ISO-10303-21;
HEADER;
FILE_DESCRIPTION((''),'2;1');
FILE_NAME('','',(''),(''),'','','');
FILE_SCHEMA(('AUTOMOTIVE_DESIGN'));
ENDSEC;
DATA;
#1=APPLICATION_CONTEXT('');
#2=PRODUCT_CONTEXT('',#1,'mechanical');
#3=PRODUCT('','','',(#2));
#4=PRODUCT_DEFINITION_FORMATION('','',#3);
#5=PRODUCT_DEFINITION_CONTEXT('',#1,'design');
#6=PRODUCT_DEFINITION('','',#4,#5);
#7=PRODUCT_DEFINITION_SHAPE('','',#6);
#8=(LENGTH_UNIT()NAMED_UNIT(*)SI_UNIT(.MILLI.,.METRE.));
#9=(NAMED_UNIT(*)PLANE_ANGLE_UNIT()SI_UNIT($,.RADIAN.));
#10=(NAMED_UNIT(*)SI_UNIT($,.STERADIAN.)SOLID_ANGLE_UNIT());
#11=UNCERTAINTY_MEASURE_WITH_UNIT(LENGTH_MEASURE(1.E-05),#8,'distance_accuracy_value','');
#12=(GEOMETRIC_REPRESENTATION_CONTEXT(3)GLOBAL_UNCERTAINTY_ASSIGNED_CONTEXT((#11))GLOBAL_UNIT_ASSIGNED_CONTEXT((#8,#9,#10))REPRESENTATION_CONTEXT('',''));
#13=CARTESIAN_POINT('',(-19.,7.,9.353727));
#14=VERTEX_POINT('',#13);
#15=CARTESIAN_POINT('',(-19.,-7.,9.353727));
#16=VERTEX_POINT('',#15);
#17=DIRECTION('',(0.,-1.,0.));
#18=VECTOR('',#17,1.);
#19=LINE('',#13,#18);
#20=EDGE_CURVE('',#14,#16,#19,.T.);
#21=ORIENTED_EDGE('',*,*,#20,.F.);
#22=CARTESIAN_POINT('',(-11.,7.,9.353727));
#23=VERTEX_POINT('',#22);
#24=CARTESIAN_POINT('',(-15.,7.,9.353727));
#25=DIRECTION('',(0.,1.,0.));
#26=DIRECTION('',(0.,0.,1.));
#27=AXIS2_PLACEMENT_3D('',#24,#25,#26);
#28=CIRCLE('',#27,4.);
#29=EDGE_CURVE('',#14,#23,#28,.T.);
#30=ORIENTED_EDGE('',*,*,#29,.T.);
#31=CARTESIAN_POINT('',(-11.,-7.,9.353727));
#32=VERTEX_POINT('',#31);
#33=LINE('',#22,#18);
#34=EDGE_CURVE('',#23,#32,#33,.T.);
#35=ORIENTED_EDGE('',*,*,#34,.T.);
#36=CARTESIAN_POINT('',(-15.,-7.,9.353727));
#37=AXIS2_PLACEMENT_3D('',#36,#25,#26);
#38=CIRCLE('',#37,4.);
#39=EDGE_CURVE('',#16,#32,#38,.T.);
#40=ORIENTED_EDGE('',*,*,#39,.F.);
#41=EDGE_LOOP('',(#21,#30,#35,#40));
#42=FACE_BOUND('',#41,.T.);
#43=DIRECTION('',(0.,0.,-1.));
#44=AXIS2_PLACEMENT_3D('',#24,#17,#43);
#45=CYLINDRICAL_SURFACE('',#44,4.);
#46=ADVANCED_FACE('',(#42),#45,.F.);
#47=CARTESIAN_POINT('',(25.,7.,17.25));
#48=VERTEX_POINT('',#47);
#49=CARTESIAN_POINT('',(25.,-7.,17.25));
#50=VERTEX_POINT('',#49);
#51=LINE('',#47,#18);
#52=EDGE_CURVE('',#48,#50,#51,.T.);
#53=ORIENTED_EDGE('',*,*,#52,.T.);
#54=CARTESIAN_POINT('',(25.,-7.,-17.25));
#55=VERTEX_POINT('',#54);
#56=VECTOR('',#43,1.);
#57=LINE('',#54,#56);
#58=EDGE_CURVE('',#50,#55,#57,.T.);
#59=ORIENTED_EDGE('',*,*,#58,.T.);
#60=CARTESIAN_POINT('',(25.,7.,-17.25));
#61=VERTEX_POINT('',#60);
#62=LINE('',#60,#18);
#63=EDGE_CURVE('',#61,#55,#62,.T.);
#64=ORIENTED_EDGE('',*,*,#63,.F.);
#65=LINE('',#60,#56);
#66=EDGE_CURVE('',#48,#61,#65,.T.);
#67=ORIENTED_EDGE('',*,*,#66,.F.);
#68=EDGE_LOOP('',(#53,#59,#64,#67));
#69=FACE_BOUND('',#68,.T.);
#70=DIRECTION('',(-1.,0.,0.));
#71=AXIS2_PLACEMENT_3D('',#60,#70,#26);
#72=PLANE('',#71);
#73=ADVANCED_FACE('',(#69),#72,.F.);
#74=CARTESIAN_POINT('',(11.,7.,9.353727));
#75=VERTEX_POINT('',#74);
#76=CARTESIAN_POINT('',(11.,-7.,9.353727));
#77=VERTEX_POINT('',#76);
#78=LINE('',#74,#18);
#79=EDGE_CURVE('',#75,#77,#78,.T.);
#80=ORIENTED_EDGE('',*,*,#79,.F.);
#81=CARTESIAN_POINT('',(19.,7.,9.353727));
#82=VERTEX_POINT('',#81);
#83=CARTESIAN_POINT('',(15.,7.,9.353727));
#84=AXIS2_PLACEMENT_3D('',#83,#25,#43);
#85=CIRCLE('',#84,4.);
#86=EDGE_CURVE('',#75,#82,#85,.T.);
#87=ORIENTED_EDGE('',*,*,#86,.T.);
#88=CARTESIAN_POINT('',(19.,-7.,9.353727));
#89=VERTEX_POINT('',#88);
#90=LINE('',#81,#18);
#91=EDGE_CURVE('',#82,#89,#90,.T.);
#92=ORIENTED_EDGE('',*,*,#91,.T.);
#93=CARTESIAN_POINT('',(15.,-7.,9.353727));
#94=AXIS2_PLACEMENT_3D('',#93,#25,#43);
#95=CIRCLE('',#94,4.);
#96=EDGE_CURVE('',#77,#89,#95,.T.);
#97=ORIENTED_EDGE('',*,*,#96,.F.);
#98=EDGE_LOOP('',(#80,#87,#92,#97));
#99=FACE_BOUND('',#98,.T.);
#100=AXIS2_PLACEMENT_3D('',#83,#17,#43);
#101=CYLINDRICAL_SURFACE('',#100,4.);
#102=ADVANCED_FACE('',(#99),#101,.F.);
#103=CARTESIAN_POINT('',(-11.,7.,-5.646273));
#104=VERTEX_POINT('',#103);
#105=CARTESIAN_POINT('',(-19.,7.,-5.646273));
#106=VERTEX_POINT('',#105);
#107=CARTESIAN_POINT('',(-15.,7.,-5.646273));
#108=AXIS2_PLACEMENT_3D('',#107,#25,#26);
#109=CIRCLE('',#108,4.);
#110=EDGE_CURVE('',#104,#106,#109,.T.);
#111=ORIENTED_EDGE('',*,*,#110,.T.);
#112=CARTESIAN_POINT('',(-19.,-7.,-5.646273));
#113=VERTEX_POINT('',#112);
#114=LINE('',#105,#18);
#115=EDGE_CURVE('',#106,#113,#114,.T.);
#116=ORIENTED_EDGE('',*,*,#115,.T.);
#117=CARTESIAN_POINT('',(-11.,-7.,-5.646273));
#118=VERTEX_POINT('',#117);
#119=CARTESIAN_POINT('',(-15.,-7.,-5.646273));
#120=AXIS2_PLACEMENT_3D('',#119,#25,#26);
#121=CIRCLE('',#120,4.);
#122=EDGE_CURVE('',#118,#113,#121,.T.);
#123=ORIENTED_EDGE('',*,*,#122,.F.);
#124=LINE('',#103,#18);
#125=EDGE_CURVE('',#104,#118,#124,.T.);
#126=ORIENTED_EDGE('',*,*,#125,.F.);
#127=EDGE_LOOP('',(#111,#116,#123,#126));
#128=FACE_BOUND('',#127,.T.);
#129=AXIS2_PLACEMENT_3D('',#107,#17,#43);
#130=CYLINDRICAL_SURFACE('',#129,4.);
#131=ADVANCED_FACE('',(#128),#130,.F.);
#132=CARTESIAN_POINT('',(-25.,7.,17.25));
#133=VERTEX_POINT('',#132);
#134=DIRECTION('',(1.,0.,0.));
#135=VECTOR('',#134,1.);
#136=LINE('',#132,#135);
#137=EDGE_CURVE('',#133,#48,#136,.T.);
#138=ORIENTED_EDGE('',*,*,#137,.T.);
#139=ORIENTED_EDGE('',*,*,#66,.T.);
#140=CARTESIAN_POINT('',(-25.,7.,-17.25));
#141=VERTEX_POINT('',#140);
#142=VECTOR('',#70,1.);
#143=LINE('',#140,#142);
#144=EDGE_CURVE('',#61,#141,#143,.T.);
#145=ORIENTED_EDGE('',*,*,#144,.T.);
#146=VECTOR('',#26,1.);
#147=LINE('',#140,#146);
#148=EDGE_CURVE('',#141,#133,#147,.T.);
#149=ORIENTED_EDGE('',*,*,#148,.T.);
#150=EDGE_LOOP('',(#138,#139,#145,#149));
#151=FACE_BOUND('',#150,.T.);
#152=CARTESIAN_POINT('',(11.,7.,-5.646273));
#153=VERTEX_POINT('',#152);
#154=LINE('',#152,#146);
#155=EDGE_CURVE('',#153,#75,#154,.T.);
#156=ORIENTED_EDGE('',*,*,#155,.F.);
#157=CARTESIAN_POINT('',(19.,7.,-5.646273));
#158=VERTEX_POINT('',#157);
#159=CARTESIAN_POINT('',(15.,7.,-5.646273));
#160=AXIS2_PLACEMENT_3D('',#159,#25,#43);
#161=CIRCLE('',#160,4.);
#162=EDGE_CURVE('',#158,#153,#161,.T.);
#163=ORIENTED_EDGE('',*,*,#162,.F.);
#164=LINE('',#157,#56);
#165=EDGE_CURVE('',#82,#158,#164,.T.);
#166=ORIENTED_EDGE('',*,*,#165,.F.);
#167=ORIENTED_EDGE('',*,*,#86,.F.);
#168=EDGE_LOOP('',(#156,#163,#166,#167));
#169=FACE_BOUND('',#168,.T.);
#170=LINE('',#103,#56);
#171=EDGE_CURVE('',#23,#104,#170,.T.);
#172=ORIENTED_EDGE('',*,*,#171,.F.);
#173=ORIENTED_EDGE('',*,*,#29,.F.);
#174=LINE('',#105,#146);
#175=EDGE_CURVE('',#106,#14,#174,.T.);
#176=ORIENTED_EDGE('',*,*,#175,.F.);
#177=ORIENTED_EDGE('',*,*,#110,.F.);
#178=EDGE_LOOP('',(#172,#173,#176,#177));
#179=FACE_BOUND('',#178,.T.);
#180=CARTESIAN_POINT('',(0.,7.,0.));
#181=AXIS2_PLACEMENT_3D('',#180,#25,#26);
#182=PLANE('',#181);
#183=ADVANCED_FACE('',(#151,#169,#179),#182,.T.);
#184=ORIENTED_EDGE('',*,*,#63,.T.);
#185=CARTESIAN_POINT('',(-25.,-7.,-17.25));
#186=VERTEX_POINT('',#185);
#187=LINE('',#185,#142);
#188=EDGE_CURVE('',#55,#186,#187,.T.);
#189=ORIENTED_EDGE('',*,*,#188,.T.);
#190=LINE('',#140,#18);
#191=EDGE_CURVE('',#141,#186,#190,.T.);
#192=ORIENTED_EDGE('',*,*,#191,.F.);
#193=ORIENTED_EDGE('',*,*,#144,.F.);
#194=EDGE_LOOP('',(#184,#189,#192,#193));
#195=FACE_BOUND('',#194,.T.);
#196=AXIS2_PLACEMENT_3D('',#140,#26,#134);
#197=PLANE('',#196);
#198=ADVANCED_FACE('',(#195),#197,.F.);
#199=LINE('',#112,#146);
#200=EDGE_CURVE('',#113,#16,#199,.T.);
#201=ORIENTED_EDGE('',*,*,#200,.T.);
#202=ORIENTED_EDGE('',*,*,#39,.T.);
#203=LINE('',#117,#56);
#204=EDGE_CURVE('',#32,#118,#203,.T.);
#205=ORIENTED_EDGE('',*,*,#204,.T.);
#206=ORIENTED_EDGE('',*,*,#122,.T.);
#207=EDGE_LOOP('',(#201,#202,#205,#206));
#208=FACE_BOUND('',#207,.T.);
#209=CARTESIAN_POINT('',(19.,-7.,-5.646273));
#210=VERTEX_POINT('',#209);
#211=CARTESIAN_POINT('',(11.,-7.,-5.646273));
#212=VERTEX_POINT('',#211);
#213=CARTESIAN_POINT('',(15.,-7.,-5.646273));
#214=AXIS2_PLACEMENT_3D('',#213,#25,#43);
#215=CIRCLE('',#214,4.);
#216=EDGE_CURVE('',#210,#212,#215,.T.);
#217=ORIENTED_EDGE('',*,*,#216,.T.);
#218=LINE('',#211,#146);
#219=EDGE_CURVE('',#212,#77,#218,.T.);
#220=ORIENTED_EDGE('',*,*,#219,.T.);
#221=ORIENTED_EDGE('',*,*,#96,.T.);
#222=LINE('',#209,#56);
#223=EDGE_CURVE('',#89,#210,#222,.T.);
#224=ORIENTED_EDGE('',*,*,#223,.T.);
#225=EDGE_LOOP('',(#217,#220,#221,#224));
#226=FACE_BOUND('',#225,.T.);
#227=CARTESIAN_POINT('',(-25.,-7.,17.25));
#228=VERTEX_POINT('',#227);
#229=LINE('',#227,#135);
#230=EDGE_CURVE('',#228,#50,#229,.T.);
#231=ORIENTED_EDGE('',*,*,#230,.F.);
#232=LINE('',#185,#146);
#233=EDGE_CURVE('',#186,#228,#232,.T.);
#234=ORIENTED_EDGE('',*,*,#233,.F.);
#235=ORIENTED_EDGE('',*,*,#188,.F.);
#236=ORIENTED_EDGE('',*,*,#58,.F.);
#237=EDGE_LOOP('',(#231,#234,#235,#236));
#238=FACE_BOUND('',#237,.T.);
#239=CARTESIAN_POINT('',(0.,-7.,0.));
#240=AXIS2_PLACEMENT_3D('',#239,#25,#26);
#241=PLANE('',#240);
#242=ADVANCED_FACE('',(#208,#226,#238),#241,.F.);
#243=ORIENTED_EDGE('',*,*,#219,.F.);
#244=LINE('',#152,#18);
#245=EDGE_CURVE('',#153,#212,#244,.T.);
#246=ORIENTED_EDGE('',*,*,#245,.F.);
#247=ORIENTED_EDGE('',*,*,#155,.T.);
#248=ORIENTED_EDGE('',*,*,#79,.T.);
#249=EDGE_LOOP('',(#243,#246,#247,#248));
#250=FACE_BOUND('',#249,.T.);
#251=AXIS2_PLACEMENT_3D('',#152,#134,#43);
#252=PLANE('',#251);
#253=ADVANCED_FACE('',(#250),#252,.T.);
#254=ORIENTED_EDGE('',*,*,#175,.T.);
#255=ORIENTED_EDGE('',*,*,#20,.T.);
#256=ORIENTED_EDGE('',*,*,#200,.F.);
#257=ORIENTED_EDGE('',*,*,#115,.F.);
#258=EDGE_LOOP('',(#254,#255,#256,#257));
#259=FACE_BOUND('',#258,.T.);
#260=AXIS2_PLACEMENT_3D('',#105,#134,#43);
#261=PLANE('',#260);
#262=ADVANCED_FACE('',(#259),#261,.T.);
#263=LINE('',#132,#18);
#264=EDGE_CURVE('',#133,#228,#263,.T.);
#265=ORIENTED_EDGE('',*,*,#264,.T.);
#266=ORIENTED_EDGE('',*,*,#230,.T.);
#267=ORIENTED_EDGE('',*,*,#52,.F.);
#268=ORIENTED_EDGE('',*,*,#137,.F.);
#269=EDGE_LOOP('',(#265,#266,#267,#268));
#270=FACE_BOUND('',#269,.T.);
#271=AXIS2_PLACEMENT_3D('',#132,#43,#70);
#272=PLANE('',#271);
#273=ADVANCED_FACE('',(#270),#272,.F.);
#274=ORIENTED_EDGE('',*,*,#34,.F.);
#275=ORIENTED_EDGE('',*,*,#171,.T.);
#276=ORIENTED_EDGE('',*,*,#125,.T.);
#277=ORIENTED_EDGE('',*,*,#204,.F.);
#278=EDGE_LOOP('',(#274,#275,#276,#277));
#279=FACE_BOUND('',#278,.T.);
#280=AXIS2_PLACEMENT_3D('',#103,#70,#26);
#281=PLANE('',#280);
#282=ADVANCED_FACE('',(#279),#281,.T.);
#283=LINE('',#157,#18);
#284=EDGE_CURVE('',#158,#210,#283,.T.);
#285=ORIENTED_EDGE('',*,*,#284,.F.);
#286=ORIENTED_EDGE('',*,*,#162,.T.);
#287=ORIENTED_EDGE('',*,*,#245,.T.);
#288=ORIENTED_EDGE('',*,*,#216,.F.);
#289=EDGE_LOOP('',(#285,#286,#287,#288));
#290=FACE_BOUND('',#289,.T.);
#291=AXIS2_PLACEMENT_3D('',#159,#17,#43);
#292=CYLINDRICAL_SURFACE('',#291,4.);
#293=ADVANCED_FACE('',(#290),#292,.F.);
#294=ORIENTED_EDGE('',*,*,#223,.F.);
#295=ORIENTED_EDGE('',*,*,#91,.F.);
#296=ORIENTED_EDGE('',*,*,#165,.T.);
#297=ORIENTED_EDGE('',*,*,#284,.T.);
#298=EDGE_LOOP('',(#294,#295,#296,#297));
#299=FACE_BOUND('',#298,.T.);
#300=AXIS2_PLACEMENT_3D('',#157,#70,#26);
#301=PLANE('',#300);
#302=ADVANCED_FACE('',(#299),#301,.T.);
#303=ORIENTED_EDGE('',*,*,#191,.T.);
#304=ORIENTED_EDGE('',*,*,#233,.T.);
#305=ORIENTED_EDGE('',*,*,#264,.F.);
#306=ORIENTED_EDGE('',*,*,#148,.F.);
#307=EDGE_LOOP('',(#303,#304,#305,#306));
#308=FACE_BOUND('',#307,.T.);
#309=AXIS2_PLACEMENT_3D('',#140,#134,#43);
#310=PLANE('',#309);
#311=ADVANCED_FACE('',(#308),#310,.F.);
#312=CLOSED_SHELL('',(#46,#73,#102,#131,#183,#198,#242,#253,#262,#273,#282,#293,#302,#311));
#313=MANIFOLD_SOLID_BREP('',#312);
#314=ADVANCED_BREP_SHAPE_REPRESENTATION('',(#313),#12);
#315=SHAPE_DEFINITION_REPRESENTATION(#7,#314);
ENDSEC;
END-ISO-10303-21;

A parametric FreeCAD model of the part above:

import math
import FreeCAD as App
import Part
import Sketcher

V = App.Vector
Q = App.Units.Quantity


def add_polygon(sketch, points):
    """Adds a closed chain of lines whose ends are joined by coincident constraints."""
    first, n = sketch.GeometryCount, len(points)
    for a, b in zip(points, points[1:] + points[:1]):
        sketch.addGeometry(Part.LineSegment(App.Vector(*a, 0), App.Vector(*b, 0)), False)
    for i in range(n):
        sketch.addConstraint(Sketcher.Constraint("Coincident", first + i, 2, first + (i + 1) % n, 1))

doc = App.newDocument("Part")
params = doc.addObject("Spreadsheet::Sheet", "Params")
for row, (alias, value) in enumerate([
    ("sketch1_radius", "4 mm"),
    ("sketch1_width", "50 mm"),
    ("sketch1_height", "15 mm"),
    ("sketch1_height2", "34.5 mm"),
    ("pad1_length", "14 mm"),
], start=1):
    params.set(f"A{row}", alias)
    params.set(f"B{row}", "=" + value)
    params.setAlias(f"B{row}", alias)

body = doc.addObject("PartDesign::Body", "Body")

sketch1 = doc.addObject("Sketcher::SketchObject", "Sketch")
body.addObject(sketch1)
sketch1.AttachmentSupport = (doc.XZ_Plane, [""])
sketch1.MapMode = "FlatFace"
add_polygon(sketch1, [(-25, -17.25), (-25, 17.25), (25, 17.25), (25, -17.25)])
sketch1.addGeometry(Part.ArcOfCircle(Part.Circle(V(-15, -5.646273, 0), V(0, 0, 1), 4), math.radians(180), math.radians(360)), False)
sketch1.addGeometry(Part.LineSegment(V(-11, -5.646273, 0), V(-11, 9.353727, 0)), False)
sketch1.addGeometry(Part.ArcOfCircle(Part.Circle(V(-15, 9.353727, 0), V(0, 0, 1), 4), math.radians(0), math.radians(180)), False)
sketch1.addGeometry(Part.LineSegment(V(-19, 9.353727, 0), V(-19, -5.646273, 0)), False)
sketch1.addGeometry(Part.LineSegment(V(11, 9.353727, 0), V(11, -5.646273, 0)), False)
sketch1.addGeometry(Part.ArcOfCircle(Part.Circle(V(15, -5.646273, 0), V(0, 0, 1), 4), math.radians(180), math.radians(360)), False)
sketch1.addGeometry(Part.LineSegment(V(19, -5.646273, 0), V(19, 9.353727, 0)), False)
sketch1.addGeometry(Part.ArcOfCircle(Part.Circle(V(15, 9.353727, 0), V(0, 0, 1), 4), math.radians(0), math.radians(180)), False)
sketch1.addConstraint(Sketcher.Constraint("Tangent", 4, 2, 5, 1))
sketch1.addConstraint(Sketcher.Constraint("Tangent", 5, 2, 6, 1))
sketch1.addConstraint(Sketcher.Constraint("Tangent", 6, 2, 7, 1))
sketch1.addConstraint(Sketcher.Constraint("Tangent", 7, 2, 4, 1))
sketch1.addConstraint(Sketcher.Constraint("Tangent", 8, 2, 9, 1))
sketch1.addConstraint(Sketcher.Constraint("Tangent", 9, 2, 10, 1))
sketch1.addConstraint(Sketcher.Constraint("Tangent", 10, 2, 11, 1))
sketch1.addConstraint(Sketcher.Constraint("Tangent", 11, 2, 8, 1))
sketch1.addConstraint(Sketcher.Constraint("Vertical", 0))
sketch1.addConstraint(Sketcher.Constraint("Horizontal", 1))
sketch1.addConstraint(Sketcher.Constraint("Vertical", 2))
sketch1.addConstraint(Sketcher.Constraint("Horizontal", 3))
sketch1.addConstraint(Sketcher.Constraint("Vertical", 5))
sketch1.addConstraint(Sketcher.Constraint("Vertical", 7))
sketch1.addConstraint(Sketcher.Constraint("Vertical", 8))
sketch1.addConstraint(Sketcher.Constraint("Vertical", 10))
sketch1.addConstraint(Sketcher.Constraint("Equal", 6, 9))
sketch1.addConstraint(Sketcher.Constraint("Symmetric", 0, 2, 2, 2, -1, 1))
sketch1.addConstraint(Sketcher.Constraint("Symmetric", 4, 3, 9, 3, -2))
sketch1.addConstraint(Sketcher.Constraint("Horizontal", 6, 3, 11, 3))
sketch1.addConstraint(Sketcher.Constraint("Radius", 4, Q("4 mm")))
sketch1.addConstraint(Sketcher.Constraint("DistanceX", 1, 1, 1, 2, Q("50 mm")))
sketch1.addConstraint(Sketcher.Constraint("DistanceY", 5, 1, 5, 2, Q("15 mm")))
sketch1.addConstraint(Sketcher.Constraint("DistanceY", 0, 1, 0, 2, Q("34.5 mm")))
sketch1.addConstraint(Sketcher.Constraint("DistanceX", 4, 3, -1, 1, Q("15 mm")))
sketch1.addConstraint(Sketcher.Constraint("DistanceY", 4, 3, -1, 1, Q("5.646273 mm")))
sketch1.setExpression("Constraints[24]", "Params.sketch1_radius")
sketch1.setExpression("Constraints[25]", "Params.sketch1_width")
sketch1.setExpression("Constraints[26]", "Params.sketch1_height")
sketch1.setExpression("Constraints[27]", "Params.sketch1_height2")
pad1 = doc.addObject("PartDesign::Pad", "Pad")
body.addObject(pad1)
pad1.Profile = sketch1
pad1.setExpression("Length", "Params.pad1_length")
pad1.Midplane = True

doc.recompute()
